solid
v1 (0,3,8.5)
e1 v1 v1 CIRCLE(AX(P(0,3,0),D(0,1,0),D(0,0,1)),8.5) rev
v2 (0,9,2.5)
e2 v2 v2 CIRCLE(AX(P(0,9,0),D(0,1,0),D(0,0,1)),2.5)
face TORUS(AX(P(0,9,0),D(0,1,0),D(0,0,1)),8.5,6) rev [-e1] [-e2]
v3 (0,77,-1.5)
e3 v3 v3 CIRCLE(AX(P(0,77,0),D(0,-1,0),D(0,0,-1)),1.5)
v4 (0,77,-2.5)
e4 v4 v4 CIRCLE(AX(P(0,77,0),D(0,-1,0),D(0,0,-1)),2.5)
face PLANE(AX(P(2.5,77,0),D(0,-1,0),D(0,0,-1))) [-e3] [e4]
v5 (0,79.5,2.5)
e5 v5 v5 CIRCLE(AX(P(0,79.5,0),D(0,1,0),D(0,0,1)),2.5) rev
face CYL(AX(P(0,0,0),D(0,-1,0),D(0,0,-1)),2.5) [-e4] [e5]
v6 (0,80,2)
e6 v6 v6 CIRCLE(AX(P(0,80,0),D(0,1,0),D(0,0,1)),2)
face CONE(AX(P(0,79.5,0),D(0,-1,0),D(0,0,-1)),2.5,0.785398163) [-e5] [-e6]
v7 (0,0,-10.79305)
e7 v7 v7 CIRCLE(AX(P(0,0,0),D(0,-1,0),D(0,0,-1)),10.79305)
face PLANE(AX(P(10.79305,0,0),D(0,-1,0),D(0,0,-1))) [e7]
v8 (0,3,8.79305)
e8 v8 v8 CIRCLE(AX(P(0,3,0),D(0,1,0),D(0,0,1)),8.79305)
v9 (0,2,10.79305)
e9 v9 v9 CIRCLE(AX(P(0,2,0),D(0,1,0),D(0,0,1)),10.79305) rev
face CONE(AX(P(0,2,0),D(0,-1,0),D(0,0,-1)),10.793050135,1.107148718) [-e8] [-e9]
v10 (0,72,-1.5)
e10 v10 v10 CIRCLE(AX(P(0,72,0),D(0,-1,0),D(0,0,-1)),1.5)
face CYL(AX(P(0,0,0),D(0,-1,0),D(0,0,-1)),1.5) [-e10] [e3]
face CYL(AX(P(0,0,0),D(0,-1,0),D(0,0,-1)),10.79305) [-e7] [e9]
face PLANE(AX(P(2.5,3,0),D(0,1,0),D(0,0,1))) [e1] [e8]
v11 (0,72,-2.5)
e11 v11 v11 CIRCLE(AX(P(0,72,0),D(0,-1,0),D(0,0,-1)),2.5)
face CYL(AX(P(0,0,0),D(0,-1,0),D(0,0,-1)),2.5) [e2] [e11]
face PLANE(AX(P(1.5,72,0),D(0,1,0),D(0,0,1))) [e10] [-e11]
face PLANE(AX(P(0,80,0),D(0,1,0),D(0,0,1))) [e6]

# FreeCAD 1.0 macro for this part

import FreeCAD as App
import Part
import Sketcher

V = App.Vector
Q = App.Units.Quantity


def edges_at(feature, points):
    """Names of the edges that pass closest to the given points."""
    edges = feature.Shape.Edges
    near = lambda p: min(range(len(edges)), key=lambda i: edges[i].distToShape(Part.Vertex(*p))[0])
    return sorted({f"Edge{near(p) + 1}" for p in points})


def add_polygon(sketch, points):
    """Adds a closed chain of lines whose ends are joined by coincident constraints."""
    first, n = sketch.GeometryCount, len(points)
    for a, b in zip(points, points[1:] + points[:1]):
        sketch.addGeometry(Part.LineSegment(App.Vector(*a, 0), App.Vector(*b, 0)), False)
    for i in range(n):
        sketch.addConstraint(Sketcher.Constraint("Coincident", first + i, 2, first + (i + 1) % n, 1))

doc = App.newDocument("Part")
params = doc.addObject("Spreadsheet::Sheet", "Params")
for row, (alias, value) in enumerate([
    ("sketch1_width", "1 mm"),
    ("sketch1_height", "80 mm"),
    ("sketch1_height2", "3 mm"),
    ("sketch1_height3", "69 mm"),
    ("sketch1_width2", "2.5 mm"),
    ("revolution_angle", "360 deg"),
    ("fillet_radius", "6 mm"),
    ("chamfer_size", "0.5 mm"),
    ("chamfer2_size", "2 mm"),
    ("chamfer2_size2", "1 mm"),
], start=1):
    params.set(f"A{row}", alias)
    params.set(f"B{row}", "=" + value)
    params.setAlias(f"B{row}", alias)

body = doc.addObject("PartDesign::Body", "Body")

sketch1 = doc.addObject("Sketcher::SketchObject", "Sketch")
body.addObject(sketch1)
sketch1.AttachmentSupport = (doc.XY_Plane, [""])
sketch1.MapMode = "FlatFace"
add_polygon(sketch1, [(0, 80), (0, 0), (10.79305, 0), (10.79305, 3), (2.5, 3), (2.5, 72), (1.5, 72), (1.5, 77), (2.5, 77), (2.5, 80)])
sketch1.addConstraint(Sketcher.Constraint("Vertical", 0))
sketch1.addConstraint(Sketcher.Constraint("Horizontal", 1))
sketch1.addConstraint(Sketcher.Constraint("Vertical", 2))
sketch1.addConstraint(Sketcher.Constraint("Horizontal", 3))
sketch1.addConstraint(Sketcher.Constraint("Vertical", 4))
sketch1.addConstraint(Sketcher.Constraint("Horizontal", 5))
sketch1.addConstraint(Sketcher.Constraint("Vertical", 6))
sketch1.addConstraint(Sketcher.Constraint("Horizontal", 7))
sketch1.addConstraint(Sketcher.Constraint("Vertical", 8))
sketch1.addConstraint(Sketcher.Constraint("Horizontal", 9))
sketch1.addConstraint(Sketcher.Constraint("Coincident", 0, 2, -1, 1))
sketch1.addConstraint(Sketcher.Constraint("Vertical", 4, 2, 7, 2))
sketch1.addConstraint(Sketcher.Constraint("Equal", 2, 8))
sketch1.addConstraint(Sketcher.Constraint("DistanceX", 5, 2, 5, 1, Q("1 mm")))
sketch1.addConstraint(Sketcher.Constraint("DistanceY", 0, 2, 0, 1, Q("80 mm")))
sketch1.addConstraint(Sketcher.Constraint("DistanceY", 2, 1, 2, 2, Q("3 mm")))
sketch1.addConstraint(Sketcher.Constraint("DistanceY", 4, 1, 4, 2, Q("69 mm")))
sketch1.addConstraint(Sketcher.Constraint("DistanceX", 9, 2, 9, 1, Q("2.5 mm")))
sketch1.addConstraint(Sketcher.Constraint("DistanceX", 1, 1, 1, 2, Q("10.79305 mm")))
sketch1.setExpression("Constraints[23]", "Params.sketch1_width")
sketch1.setExpression("Constraints[24]", "Params.sketch1_height")
sketch1.setExpression("Constraints[25]", "Params.sketch1_height2")
sketch1.setExpression("Constraints[26]", "Params.sketch1_height3")
sketch1.setExpression("Constraints[27]", "Params.sketch1_width2")
revolution = doc.addObject("PartDesign::Revolution", "Revolution")
body.addObject(revolution)
revolution.Profile = sketch1
revolution.ReferenceAxis = (sketch1, ["V_Axis"])
revolution.setExpression("Angle", "Params.revolution_angle")
doc.recompute()

fillet = doc.addObject("PartDesign::Fillet", "Fillet")
body.addObject(fillet)
fillet.Base = (revolution, edges_at(revolution, [(0, 3, 2.5)]))
fillet.setExpression("Radius", "Params.fillet_radius")
doc.recompute()

chamfer = doc.addObject("PartDesign::Chamfer", "Chamfer")
body.addObject(chamfer)
chamfer.Base = (fillet, edges_at(fillet, [(0, 80, 2.5)]))
chamfer.setExpression("Size", "Params.chamfer_size")
doc.recompute()

chamfer2 = doc.addObject("PartDesign::Chamfer", "Chamfer001")
body.addObject(chamfer2)
chamfer2.Base = (chamfer, edges_at(chamfer, [(0, 3, 10.793)]))
chamfer2.ChamferType = "Two distances"
chamfer2.setExpression("Size", "Params.chamfer2_size")
chamfer2.setExpression("Size2", "Params.chamfer2_size2")

doc.recompute()
